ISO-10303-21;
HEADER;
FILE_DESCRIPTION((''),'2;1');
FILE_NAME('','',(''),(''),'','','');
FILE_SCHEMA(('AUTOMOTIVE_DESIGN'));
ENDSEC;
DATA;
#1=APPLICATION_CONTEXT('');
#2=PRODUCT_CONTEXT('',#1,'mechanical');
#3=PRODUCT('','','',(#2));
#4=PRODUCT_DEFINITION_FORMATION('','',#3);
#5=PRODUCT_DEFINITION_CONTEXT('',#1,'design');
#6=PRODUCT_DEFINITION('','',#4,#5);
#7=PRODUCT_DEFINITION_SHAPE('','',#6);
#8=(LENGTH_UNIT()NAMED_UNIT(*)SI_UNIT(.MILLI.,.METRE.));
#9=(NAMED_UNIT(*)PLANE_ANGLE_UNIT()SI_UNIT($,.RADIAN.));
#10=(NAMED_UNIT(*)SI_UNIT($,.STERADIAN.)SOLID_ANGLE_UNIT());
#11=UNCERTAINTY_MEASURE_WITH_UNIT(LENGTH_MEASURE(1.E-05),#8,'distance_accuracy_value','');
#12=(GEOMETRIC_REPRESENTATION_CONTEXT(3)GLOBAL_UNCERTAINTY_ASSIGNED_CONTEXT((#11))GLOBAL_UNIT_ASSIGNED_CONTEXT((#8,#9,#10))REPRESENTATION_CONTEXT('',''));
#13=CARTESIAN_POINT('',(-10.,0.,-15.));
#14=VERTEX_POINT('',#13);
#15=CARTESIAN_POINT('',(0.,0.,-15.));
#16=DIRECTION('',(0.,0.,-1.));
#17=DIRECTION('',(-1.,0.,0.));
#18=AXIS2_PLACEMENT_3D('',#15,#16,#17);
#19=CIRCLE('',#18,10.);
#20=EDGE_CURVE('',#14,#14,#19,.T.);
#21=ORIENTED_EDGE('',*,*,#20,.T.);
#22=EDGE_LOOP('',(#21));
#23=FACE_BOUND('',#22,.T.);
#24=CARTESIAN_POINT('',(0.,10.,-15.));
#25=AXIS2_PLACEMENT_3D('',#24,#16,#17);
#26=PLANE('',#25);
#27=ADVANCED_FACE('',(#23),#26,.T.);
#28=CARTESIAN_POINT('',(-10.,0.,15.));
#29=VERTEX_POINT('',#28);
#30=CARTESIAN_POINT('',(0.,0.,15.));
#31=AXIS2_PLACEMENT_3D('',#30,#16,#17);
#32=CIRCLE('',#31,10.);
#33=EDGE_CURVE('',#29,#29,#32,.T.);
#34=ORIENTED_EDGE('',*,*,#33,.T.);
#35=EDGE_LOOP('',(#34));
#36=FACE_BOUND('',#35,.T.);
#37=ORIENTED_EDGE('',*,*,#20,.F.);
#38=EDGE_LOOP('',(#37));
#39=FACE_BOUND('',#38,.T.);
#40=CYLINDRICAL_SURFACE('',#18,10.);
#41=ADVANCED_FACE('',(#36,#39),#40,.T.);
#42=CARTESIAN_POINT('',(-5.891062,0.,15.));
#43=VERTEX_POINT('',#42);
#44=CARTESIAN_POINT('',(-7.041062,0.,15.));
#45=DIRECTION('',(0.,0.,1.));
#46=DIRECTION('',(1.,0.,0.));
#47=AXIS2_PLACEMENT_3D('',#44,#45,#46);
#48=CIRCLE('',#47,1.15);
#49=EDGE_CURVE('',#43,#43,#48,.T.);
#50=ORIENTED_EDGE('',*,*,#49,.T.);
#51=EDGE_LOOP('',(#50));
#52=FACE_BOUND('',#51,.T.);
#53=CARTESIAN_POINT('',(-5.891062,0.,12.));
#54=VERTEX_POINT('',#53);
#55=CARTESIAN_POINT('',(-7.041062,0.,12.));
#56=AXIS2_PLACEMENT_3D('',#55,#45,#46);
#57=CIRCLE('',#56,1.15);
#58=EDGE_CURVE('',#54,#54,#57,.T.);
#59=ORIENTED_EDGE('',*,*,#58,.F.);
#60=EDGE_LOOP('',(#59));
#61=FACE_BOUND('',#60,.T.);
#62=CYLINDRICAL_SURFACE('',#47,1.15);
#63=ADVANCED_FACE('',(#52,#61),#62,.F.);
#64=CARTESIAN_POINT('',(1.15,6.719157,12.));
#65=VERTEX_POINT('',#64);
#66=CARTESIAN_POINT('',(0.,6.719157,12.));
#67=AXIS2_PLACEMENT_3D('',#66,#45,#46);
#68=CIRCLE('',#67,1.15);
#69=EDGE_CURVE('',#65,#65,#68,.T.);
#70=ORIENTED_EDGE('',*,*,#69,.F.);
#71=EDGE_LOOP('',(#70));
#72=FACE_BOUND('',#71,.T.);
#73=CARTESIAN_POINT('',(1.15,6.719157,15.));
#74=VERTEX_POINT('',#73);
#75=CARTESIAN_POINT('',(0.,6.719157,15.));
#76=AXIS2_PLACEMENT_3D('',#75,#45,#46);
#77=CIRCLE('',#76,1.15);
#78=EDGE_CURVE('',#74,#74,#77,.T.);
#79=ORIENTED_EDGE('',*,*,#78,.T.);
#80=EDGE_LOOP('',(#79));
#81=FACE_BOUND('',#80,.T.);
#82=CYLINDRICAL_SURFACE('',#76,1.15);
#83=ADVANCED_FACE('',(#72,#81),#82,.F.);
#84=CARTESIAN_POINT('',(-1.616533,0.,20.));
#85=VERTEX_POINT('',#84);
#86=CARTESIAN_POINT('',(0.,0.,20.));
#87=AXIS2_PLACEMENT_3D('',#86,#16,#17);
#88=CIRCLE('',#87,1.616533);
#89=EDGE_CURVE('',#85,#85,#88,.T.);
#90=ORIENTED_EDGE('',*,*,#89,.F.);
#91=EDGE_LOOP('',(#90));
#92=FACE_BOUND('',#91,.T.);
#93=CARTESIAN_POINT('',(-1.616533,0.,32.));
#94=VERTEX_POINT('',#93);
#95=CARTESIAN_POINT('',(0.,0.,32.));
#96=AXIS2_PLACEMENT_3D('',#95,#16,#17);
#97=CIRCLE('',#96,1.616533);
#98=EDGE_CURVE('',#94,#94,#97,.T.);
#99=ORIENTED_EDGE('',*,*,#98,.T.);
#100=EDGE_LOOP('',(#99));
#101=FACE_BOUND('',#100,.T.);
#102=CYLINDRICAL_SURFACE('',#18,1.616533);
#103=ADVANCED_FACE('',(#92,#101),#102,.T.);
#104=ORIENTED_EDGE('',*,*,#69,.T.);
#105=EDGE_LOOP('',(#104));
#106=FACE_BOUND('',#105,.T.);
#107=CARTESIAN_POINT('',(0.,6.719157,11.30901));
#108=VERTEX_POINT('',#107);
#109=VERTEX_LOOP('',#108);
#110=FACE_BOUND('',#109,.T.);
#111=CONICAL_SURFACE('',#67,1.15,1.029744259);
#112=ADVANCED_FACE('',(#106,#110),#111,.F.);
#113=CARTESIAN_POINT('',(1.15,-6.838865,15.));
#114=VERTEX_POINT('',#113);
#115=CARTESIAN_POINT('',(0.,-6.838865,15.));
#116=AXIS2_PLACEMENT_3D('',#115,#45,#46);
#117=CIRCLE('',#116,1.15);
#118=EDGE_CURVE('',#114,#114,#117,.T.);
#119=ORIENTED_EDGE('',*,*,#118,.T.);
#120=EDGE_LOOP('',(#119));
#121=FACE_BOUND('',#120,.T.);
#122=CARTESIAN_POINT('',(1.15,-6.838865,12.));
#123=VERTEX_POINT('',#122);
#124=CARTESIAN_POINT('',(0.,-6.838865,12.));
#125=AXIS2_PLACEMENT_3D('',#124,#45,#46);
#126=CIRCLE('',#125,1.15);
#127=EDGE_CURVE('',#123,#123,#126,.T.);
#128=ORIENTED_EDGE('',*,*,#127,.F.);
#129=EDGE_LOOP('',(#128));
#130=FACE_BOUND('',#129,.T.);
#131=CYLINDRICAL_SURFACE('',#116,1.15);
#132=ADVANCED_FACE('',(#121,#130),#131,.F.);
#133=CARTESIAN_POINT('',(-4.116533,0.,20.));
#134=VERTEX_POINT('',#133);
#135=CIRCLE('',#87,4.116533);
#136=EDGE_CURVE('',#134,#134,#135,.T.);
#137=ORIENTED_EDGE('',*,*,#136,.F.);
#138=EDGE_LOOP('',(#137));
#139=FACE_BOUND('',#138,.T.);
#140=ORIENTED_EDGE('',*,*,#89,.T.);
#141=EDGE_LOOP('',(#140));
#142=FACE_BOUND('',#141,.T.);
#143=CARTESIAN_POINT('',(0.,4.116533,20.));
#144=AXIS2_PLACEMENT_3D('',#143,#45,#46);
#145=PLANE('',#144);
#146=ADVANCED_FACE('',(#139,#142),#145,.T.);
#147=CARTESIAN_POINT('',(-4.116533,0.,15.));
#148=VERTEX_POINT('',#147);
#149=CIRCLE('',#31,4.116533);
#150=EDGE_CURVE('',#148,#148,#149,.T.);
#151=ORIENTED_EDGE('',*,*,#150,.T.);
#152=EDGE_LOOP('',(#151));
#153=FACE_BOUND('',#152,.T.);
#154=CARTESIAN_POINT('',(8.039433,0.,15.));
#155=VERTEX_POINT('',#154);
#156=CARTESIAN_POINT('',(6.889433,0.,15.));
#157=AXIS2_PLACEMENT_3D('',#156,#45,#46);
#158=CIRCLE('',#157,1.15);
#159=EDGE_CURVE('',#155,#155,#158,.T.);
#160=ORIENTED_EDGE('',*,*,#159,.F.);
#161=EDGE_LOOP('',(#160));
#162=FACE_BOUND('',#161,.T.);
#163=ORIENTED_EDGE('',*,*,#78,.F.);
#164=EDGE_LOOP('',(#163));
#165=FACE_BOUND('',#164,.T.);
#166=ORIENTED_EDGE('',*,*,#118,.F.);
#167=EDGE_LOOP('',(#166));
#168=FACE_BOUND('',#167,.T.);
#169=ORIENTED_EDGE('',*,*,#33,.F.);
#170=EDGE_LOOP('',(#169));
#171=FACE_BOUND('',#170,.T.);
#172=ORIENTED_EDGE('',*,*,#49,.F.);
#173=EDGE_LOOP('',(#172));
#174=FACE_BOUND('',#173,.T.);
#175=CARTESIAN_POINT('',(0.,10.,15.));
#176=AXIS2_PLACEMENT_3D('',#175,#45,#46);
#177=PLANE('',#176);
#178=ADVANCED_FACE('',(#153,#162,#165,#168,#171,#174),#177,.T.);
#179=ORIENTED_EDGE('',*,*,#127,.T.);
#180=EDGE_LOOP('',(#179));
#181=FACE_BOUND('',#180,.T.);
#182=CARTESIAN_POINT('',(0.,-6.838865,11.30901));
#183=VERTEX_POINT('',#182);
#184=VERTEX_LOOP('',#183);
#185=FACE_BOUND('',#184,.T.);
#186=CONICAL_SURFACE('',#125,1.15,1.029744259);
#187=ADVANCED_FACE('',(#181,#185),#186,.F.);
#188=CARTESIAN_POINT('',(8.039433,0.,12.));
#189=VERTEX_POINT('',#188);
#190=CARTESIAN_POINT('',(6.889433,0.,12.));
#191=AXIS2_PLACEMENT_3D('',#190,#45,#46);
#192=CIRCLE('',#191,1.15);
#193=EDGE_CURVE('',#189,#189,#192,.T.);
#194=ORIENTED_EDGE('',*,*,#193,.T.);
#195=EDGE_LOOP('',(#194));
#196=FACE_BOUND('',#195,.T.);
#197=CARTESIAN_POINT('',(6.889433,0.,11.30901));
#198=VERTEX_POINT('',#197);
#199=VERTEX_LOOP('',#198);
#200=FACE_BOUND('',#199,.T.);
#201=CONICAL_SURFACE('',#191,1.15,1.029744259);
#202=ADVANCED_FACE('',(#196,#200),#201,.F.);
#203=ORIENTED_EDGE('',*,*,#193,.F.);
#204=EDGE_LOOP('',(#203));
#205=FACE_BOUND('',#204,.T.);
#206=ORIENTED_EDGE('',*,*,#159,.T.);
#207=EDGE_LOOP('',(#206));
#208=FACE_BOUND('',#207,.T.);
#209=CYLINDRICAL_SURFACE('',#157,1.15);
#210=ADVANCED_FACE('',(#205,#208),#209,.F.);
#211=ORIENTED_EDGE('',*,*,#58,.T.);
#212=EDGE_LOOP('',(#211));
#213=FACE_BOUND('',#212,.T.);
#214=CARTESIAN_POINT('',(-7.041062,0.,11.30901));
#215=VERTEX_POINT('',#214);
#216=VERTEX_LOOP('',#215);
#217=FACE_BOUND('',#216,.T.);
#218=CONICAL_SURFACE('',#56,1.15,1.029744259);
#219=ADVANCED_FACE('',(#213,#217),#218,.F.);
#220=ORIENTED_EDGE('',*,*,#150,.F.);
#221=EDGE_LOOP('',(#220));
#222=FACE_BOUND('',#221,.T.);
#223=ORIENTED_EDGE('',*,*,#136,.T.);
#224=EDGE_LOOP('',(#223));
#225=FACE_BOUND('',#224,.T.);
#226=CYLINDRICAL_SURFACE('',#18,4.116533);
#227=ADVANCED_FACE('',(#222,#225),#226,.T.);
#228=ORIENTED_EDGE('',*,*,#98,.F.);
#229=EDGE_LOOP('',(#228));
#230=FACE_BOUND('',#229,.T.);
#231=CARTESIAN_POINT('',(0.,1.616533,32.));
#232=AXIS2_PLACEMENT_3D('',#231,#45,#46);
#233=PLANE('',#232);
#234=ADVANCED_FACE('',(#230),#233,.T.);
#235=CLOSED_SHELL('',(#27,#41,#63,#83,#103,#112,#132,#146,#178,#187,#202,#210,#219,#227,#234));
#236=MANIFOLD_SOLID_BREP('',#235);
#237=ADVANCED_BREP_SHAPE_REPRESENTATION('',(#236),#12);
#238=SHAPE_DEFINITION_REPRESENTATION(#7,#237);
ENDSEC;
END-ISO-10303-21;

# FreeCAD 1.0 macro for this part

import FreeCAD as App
import Part
import Sketcher

V = App.Vector
Q = App.Units.Quantity

doc = App.newDocument("Part")
body = doc.addObject("PartDesign::Body", "Body")

sketch1 = body.newObject("Sketcher::SketchObject", "Sketch")
sketch1.AttachmentSupport = (doc.getObject("YZ_Plane"), [""])
sketch1.MapMode = "FlatFace"
sketch1.addGeometry([
    Part.LineSegment(V(10, -15, 0), V(10, 15, 0)),
    Part.LineSegment(V(10, 15, 0), V(4.1, 15, 0)),
    Part.LineSegment(V(4.1, 15, 0), V(4.1, 20, 0)),
    Part.LineSegment(V(4.1, 20, 0), V(1.6, 20, 0)),
    Part.LineSegment(V(1.6, 20, 0), V(1.6, 32, 0)),
    Part.LineSegment(V(1.6, 32, 0), V(0, 32, 0)),
    Part.LineSegment(V(0, 32, 0), V(0, -15, 0)),
    Part.LineSegment(V(0, -15, 0), V(10, -15, 0)),
], False)
sketch1.addConstraint([
    Sketcher.Constraint("Coincident", 0, 2, 1, 1),
    Sketcher.Constraint("Coincident", 1, 2, 2, 1),
    Sketcher.Constraint("Coincident", 2, 2, 3, 1),
    Sketcher.Constraint("Coincident", 3, 2, 4, 1),
    Sketcher.Constraint("Coincident", 4, 2, 5, 1),
    Sketcher.Constraint("Coincident", 5, 2, 6, 1),
    Sketcher.Constraint("Coincident", 6, 2, 7, 1),
    Sketcher.Constraint("Coincident", 7, 2, 0, 1),
    Sketcher.Constraint("Vertical", 0),
    Sketcher.Constraint("Horizontal", 1),
    Sketcher.Constraint("Vertical", 2),
    Sketcher.Constraint("Horizontal", 3),
    Sketcher.Constraint("Vertical", 4),
    Sketcher.Constraint("Horizontal", 5),
    Sketcher.Constraint("Vertical", 6),
    Sketcher.Constraint("Horizontal", 7),
    Sketcher.Constraint("PointOnObject", 5, 2, -2),
    Sketcher.Constraint("DistanceX", 7, 1, 7, 2, Q("10 mm")),
    Sketcher.Constraint("DistanceY", 0, 1, 0, 2, Q("30 mm")),
    Sketcher.Constraint("DistanceY", 2, 1, 2, 2, Q("5 mm")),
    Sketcher.Constraint("DistanceY", 4, 1, 4, 2, Q("12 mm")),
    Sketcher.Constraint("DistanceX", 3, 2, 3, 1, Q("2.5 mm")),
    Sketcher.Constraint("DistanceY", -1, 1, 0, 2, Q("15 mm")),
    Sketcher.Constraint("DistanceX", 1, 2, 1, 1, Q("5.883467 mm")),
])
revolution = body.newObject("PartDesign::Revolution", "Revolution")
revolution.Profile = sketch1
revolution.ReferenceAxis = (sketch1, ["V_Axis"])
revolution.Angle = 360

sketch2 = body.newObject("Sketcher::SketchObject", "Sketch001")
sketch2.AttachmentSupport = (doc.getObject("XY_Plane"), [""])
sketch2.MapMode = "FlatFace"
sketch2.AttachmentOffset = App.Placement(V(0, 0, 15), App.Rotation())
sketch2.addGeometry([
    Part.Circle(V(0, 6.7, 0), V(0, 0, 1), 1.1),
    Part.Circle(V(6.9, 0, 0), V(0, 0, 1), 1.1),
    Part.Circle(V(0, -6.8, 0), V(0, 0, 1), 1.1),
    Part.Circle(V(-7, 0, 0), V(0, 0, 1), 1.1),
], False)
sketch2.addConstraint([
    Sketcher.Constraint("Equal", 0, 1),
    Sketcher.Constraint("Equal", 1, 2),
    Sketcher.Constraint("Equal", 2, 3),
    Sketcher.Constraint("PointOnObject", 0, 3, -2),
    Sketcher.Constraint("PointOnObject", 1, 3, -1),
    Sketcher.Constraint("PointOnObject", 2, 3, -2),
    Sketcher.Constraint("PointOnObject", 3, 3, -1),
    Sketcher.Constraint("Diameter", 0, Q("2.3 mm")),
    Sketcher.Constraint("DistanceX", 3, 3, -1, 1, Q("7.041062 mm")),
    Sketcher.Constraint("DistanceY", 2, 3, 0, 3, Q("13.558022 mm")),
    Sketcher.Constraint("DistanceY", -1, 1, 0, 3, Q("6.719157 mm")),
    Sketcher.Constraint("DistanceX", -1, 1, 1, 3, Q("6.889433 mm")),
])
doc.recompute()
hole = body.newObject("PartDesign::Hole", "Hole")
hole.Profile = sketch2
hole.ThreadType = "None"
hole.Diameter = 2.3
hole.DepthType = "Dimension"
hole.Depth = 3
hole.DrillPoint = "Angled"
hole.DrillPointAngle = 118

doc.recompute()
